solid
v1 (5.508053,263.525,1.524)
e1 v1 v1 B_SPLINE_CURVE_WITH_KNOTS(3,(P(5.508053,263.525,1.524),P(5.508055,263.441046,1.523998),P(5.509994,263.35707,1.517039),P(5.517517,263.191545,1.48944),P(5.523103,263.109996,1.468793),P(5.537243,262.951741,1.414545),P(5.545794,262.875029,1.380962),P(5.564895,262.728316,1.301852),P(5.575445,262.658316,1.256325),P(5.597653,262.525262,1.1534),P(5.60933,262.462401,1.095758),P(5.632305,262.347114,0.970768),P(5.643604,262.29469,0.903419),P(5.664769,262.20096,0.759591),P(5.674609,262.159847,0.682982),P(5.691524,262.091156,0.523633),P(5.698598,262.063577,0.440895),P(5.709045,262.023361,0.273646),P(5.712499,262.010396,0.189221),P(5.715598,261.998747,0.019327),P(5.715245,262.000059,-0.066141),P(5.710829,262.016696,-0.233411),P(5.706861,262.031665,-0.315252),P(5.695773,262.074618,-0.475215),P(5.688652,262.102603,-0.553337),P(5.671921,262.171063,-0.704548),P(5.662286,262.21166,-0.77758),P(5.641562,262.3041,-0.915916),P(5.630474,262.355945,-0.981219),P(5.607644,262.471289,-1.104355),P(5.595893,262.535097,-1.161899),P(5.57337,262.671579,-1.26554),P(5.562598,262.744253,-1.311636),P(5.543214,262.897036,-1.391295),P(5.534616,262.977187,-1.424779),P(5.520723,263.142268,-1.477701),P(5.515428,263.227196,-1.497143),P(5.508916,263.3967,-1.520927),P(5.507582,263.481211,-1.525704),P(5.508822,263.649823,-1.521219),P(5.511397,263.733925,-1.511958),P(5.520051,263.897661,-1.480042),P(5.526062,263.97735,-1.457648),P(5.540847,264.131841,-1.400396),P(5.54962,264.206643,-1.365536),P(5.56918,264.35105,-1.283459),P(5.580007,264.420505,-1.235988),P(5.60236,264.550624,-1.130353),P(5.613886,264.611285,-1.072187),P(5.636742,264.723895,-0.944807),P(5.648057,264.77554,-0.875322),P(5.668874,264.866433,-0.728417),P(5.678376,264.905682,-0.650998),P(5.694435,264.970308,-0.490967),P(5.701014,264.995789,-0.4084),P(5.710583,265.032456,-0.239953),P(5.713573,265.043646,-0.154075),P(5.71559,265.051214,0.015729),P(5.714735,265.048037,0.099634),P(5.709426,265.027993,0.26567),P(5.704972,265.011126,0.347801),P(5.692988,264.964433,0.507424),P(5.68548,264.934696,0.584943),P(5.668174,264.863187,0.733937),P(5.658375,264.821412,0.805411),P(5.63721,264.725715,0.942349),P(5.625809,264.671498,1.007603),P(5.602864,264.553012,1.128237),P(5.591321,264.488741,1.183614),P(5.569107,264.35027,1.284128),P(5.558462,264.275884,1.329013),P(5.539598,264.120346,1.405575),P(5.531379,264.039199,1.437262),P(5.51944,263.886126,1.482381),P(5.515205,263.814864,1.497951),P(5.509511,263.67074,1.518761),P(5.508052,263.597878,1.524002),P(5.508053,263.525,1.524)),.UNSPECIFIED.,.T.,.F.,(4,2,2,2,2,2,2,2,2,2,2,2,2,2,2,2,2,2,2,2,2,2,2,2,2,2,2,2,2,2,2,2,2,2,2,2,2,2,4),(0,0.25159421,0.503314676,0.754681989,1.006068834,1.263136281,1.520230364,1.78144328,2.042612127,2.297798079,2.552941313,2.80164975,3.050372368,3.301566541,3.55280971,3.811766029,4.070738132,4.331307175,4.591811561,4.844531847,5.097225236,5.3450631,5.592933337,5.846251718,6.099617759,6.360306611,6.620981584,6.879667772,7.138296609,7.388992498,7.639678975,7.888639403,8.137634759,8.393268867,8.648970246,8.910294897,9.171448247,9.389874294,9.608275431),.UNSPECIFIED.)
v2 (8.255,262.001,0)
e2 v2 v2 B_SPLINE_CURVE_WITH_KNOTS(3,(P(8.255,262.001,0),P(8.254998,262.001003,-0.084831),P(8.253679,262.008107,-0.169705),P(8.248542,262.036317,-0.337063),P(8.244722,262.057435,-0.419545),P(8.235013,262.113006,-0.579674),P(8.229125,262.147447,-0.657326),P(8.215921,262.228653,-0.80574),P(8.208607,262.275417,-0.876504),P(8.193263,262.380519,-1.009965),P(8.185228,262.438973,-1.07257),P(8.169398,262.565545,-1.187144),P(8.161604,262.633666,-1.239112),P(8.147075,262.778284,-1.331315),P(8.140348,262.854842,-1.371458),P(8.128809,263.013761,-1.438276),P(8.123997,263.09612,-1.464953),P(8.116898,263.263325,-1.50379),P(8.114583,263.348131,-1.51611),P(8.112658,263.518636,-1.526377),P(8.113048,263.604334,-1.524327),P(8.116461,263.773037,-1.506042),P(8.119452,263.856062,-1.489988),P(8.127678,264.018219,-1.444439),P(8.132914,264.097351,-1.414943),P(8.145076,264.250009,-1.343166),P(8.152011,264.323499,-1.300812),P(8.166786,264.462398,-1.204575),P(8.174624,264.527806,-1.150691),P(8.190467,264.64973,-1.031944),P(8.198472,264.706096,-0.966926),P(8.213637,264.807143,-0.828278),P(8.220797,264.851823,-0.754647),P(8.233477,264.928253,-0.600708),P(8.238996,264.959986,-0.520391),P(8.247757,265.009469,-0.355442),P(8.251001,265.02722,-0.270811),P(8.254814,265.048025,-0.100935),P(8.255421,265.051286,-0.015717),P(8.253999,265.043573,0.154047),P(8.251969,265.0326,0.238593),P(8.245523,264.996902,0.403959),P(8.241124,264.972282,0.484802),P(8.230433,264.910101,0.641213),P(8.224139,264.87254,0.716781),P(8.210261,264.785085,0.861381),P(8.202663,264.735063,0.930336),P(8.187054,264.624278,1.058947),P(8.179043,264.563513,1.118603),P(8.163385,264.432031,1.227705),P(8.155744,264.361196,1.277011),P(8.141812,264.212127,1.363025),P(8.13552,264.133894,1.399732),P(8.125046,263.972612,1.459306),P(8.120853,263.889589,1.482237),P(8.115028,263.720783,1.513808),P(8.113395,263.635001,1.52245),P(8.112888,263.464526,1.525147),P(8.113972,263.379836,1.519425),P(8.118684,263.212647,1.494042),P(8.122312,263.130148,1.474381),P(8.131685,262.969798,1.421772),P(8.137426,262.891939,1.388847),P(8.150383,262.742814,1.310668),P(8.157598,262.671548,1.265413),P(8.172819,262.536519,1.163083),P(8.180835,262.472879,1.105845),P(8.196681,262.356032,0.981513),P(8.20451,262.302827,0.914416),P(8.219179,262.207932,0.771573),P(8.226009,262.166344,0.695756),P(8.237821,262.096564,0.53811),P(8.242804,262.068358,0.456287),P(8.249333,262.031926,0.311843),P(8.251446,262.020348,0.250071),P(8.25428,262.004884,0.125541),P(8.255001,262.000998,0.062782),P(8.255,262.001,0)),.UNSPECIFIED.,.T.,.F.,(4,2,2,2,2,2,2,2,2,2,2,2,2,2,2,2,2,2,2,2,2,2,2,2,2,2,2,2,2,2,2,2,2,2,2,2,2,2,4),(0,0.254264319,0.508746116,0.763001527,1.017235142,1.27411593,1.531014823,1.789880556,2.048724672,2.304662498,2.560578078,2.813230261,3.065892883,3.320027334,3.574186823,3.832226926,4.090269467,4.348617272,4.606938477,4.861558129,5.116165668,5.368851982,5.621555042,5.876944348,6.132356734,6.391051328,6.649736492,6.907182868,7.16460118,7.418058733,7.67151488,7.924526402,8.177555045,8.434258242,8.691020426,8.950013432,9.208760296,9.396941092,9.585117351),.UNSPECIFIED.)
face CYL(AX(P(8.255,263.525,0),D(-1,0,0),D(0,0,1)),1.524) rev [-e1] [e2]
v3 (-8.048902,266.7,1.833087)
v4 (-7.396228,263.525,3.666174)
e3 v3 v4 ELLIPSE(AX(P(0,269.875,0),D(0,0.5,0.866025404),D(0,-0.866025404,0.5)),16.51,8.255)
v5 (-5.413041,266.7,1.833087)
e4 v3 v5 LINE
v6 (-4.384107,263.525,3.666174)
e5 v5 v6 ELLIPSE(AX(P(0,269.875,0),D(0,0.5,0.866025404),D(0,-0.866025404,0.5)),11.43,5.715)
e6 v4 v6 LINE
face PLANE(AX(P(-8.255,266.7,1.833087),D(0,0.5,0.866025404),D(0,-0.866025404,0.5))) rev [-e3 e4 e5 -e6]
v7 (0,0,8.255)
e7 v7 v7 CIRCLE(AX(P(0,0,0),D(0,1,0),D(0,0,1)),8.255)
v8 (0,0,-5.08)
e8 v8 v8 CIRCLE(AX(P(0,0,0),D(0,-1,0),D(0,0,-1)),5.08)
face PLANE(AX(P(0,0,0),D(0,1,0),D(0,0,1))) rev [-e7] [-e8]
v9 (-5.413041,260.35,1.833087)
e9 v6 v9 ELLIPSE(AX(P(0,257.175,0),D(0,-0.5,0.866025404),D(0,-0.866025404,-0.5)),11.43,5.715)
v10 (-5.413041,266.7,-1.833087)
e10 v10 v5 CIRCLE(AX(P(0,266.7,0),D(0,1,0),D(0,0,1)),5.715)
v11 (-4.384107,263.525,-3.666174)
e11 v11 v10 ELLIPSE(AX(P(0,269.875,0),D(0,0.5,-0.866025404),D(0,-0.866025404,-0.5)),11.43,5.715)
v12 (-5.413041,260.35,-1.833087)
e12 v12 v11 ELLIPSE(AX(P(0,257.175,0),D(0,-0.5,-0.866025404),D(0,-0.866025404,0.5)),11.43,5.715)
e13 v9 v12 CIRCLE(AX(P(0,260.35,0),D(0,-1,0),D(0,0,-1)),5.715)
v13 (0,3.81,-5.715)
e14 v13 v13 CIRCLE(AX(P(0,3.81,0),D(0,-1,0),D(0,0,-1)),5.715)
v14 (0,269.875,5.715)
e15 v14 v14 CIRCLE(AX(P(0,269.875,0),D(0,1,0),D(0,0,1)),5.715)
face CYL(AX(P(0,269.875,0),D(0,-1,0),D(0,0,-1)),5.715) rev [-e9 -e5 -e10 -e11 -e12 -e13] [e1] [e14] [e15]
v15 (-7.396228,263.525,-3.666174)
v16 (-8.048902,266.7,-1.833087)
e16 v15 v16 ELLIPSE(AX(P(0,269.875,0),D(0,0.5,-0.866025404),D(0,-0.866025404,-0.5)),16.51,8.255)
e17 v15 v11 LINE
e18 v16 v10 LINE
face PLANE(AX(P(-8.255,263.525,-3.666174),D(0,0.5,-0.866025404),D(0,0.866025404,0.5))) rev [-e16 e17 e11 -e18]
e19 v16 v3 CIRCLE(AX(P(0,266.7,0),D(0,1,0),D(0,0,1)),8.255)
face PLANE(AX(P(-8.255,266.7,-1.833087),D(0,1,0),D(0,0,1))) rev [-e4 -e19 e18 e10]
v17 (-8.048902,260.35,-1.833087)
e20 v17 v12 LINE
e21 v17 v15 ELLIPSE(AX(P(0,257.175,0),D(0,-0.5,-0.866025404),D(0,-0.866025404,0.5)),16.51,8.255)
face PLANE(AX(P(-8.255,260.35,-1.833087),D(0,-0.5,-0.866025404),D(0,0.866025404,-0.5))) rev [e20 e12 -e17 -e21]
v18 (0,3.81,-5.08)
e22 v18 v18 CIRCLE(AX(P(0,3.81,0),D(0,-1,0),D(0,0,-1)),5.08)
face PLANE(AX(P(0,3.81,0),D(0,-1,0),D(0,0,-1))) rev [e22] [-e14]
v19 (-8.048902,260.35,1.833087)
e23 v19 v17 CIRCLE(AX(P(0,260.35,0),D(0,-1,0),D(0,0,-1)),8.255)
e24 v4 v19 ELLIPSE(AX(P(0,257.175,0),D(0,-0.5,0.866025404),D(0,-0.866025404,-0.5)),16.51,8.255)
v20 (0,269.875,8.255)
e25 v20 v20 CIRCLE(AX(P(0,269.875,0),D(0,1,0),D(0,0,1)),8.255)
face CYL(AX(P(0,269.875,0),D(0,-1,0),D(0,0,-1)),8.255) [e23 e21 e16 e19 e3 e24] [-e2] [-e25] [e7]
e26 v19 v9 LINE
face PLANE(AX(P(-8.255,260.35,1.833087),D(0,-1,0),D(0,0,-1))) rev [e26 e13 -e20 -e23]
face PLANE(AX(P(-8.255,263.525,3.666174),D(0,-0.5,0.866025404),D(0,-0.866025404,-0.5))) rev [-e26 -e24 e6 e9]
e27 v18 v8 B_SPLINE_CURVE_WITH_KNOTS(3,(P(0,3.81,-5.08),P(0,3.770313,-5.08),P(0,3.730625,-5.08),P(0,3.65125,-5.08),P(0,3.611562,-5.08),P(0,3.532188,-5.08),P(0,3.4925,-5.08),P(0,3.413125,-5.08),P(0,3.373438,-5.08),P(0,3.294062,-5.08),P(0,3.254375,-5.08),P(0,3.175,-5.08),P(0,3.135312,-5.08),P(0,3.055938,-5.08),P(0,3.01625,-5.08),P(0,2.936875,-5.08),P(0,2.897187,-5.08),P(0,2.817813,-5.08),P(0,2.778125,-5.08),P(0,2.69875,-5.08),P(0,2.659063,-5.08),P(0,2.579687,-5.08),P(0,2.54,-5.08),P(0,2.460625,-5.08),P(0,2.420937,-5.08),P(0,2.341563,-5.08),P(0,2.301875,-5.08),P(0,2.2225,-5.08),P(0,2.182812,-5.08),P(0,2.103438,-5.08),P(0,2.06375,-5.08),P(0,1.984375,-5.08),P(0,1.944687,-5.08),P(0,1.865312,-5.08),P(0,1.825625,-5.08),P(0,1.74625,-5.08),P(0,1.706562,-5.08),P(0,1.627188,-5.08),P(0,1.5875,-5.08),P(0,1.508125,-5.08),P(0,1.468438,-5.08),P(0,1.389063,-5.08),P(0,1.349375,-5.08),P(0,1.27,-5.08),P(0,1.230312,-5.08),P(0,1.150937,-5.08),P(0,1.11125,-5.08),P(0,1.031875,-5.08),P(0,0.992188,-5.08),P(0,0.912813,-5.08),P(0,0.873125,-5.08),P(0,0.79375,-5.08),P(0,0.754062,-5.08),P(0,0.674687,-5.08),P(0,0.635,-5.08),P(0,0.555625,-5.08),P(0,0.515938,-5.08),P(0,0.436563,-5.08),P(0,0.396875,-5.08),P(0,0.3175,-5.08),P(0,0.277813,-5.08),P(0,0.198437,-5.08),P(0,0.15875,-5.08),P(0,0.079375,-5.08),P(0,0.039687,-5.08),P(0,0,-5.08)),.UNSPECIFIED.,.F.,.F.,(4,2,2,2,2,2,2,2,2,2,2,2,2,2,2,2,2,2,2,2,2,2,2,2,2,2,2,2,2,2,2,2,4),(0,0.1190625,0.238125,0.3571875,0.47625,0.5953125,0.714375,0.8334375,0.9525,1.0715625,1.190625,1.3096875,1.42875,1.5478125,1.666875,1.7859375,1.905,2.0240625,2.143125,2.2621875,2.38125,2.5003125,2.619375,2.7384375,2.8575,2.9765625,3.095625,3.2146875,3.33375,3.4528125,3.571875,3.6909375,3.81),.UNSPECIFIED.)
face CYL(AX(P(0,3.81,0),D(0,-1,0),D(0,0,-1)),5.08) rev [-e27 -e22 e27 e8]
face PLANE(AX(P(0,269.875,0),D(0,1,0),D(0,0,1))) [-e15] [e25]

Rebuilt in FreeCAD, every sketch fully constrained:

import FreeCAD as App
import Part
import Sketcher
from FreeCAD import Vector
Q = App.Units.Quantity


def add_polygon(sketch, points):
    """Adds a closed chain of lines whose ends are joined by coincident constraints."""
    first, n = sketch.GeometryCount, len(points)
    for a, b in zip(points, points[1:] + points[:1]):
        sketch.addGeometry(Part.LineSegment(App.Vector(*a, 0), App.Vector(*b, 0)), False)
    for i in range(n):
        sketch.addConstraint(Sketcher.Constraint("Coincident", first + i, 2, first + (i + 1) % n, 1))

doc = App.newDocument("Part")
body = doc.addObject("PartDesign::Body", "Body")

# Sketch on XZ plane
sketch1 = doc.addObject("Sketcher::SketchObject", "Sketch")
body.addObject(sketch1)
sketch1.AttachmentSupport = (doc.XZ_Plane, [""])
sketch1.MapMode = "FlatFace"
sketch1.addGeometry([
    Part.Circle(Vector(0, 0, 0), Vector(0, 0, 1), 8.255),
    Part.Circle(Vector(0, 0, 0), Vector(0, 0, 1), 5.715),
], False)
sketch1.addConstraint([
    Sketcher.Constraint("Coincident", 0, 3, -1, 1),
    Sketcher.Constraint("Coincident", 1, 3, -1, 1),
    Sketcher.Constraint("Diameter", 0, Q("0.65 in")),
    Sketcher.Constraint("Diameter", 1, Q("0.45 in")),
])
pad1 = doc.addObject("PartDesign::Pad", "Pad")
body.addObject(pad1)
pad1.Profile = sketch1
pad1.Length = Q("10.625 in")
pad1.Reversed = True

# Sketch on YZ plane
sketch2 = doc.addObject("Sketcher::SketchObject", "Sketch001")
body.addObject(sketch2)
sketch2.AttachmentSupport = (doc.YZ_Plane, [""])
sketch2.MapMode = "FlatFace"
add_polygon(sketch2, [(260.35, -1.833087), (263.525, -3.666174), (266.7, -1.833087), (266.7, 1.833087), (263.525, 3.666174), (260.35, 1.833087)])  # lines 0-5
sketch2.addConstraint([
    Sketcher.Constraint("Vertical", 2),
    Sketcher.Constraint("Vertical", 5),
    Sketcher.Constraint("Symmetric", 0, 2, 3, 2, -1),
    Sketcher.Constraint("Parallel", 0, 3),
    Sketcher.Constraint("Parallel", 1, 4),
    Sketcher.Constraint("Horizontal", 2, 2, 4, 2),
    Sketcher.Constraint("Horizontal", 1, 2, 5, 2),
    Sketcher.Constraint("Angle", 0, Q("-30 deg")),
    Sketcher.Constraint("DistanceX", -1, 1, 1, 2, Q("10.5 in")),
    Sketcher.Constraint("DistanceX", -1, 1, 4, 2, Q("10.25 in")),
    Sketcher.Constraint("DistanceY", 2, 1, 2, 2, 3.666174),
])
pocket1 = doc.addObject("PartDesign::Pocket", "Pocket")
body.addObject(pocket1)
pocket1.Profile = sketch2
pocket1.Type = "ThroughAll"

# Sketch on YZ plane
sketch3 = doc.addObject("Sketcher::SketchObject", "Sketch002")
body.addObject(sketch3)
sketch3.AttachmentSupport = (doc.YZ_Plane, [""])
sketch3.MapMode = "FlatFace"
sketch3.addGeometry(Part.Circle(Vector(263.525, 0, 0), Vector(0, 0, 1), 1.524), False)
sketch3.addConstraint([
    Sketcher.Constraint("PointOnObject", 0, 3, -1),
    Sketcher.Constraint("Diameter", 0, Q("0.12 in")),
    Sketcher.Constraint("DistanceX", -1, 1, 0, 3, Q("10.375 in")),
])
pocket2 = doc.addObject("PartDesign::Pocket", "Pocket001")
body.addObject(pocket2)
pocket2.Profile = sketch3
pocket2.Type = "ThroughAll"
pocket2.Reversed = True

# Sketch on XZ plane
sketch4 = doc.addObject("Sketcher::SketchObject", "Sketch003")
body.addObject(sketch4)
sketch4.AttachmentSupport = (doc.XZ_Plane, [""])
sketch4.MapMode = "FlatFace"
sketch4.addGeometry([
    Part.Circle(Vector(0, 0, 0), Vector(0, 0, 1), 5.715),
    Part.Circle(Vector(0, 0, 0), Vector(0, 0, 1), 5.08),
], False)
sketch4.addConstraint([
    Sketcher.Constraint("Coincident", 0, 3, -1, 1),
    Sketcher.Constraint("Coincident", 1, 3, -1, 1),
    Sketcher.Constraint("Diameter", 1, Q("0.4 in")),
    Sketcher.Constraint("Diameter", 0, Q("0.45 in")),
])
pad2 = doc.addObject("PartDesign::Pad", "Pad001")
body.addObject(pad2)
pad2.Profile = sketch4
pad2.Length = Q("0.15 in")
pad2.Reversed = True

doc.recompute()
